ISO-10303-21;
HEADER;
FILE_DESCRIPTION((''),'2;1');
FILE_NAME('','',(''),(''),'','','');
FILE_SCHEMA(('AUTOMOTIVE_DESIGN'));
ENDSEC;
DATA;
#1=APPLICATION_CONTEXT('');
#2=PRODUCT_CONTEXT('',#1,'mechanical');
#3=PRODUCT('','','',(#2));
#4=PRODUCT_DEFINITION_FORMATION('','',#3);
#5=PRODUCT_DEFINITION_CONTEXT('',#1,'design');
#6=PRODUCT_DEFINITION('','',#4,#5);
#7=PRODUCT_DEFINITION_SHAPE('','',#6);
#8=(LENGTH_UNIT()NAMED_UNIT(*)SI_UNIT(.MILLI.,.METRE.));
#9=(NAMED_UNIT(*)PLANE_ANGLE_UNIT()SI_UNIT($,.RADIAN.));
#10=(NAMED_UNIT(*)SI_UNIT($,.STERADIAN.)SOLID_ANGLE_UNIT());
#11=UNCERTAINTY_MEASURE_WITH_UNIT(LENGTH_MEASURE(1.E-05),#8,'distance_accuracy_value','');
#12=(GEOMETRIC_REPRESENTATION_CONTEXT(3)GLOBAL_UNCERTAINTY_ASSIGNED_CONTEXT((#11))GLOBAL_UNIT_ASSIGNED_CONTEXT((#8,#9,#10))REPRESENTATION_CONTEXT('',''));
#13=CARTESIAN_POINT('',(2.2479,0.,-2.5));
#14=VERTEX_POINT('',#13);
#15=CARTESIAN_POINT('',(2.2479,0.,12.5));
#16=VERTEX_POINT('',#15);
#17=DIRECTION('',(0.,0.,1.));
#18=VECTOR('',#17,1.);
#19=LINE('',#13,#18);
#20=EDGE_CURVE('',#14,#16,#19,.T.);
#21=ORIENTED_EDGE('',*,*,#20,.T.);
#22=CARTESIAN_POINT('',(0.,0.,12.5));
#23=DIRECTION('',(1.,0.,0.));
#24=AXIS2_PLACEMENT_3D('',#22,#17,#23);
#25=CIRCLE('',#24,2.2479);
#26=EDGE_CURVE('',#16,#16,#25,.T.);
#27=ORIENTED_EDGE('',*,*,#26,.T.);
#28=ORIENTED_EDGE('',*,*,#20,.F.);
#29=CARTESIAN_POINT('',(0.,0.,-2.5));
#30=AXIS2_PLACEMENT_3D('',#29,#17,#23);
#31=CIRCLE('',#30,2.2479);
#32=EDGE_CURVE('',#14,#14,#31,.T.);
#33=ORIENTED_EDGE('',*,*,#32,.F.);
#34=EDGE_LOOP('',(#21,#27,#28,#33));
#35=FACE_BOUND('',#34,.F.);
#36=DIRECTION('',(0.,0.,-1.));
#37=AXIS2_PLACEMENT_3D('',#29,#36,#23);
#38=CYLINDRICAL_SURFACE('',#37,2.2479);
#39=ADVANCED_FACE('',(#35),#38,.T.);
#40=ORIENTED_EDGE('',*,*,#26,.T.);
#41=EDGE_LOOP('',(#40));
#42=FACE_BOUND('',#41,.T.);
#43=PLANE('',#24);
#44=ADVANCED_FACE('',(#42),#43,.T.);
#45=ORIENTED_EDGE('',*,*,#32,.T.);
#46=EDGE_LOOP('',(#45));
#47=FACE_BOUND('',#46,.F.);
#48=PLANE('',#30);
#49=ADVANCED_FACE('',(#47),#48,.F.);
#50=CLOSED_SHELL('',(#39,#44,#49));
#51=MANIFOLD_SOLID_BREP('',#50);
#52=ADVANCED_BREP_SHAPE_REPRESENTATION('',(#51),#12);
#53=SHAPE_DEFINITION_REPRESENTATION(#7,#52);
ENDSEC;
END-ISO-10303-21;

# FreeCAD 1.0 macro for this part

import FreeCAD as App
import Part
import Sketcher

V = App.Vector

doc = App.newDocument("Part")
params = doc.addObject("Spreadsheet::Sheet", "Params")
for row, (alias, value) in enumerate([
    ("pad1_length", "15 mm"),
], start=1):
    params.set(f"A{row}", alias)
    params.set(f"B{row}", "=" + value)
    params.setAlias(f"B{row}", alias)

body = doc.addObject("PartDesign::Body", "Body")

sketch1 = doc.addObject("Sketcher::SketchObject", "Sketch")
body.addObject(sketch1)
sketch1.AttachmentSupport = (doc.XY_Plane, [""])
sketch1.MapMode = "FlatFace"
sketch1.AttachmentOffset = App.Placement(V(0, 0, -2.5), App.Rotation())
sketch1.addGeometry(Part.Circle(V(0, 0, 0), V(0, 0, 1), 2.2), False)
sketch1.addConstraint([
    Sketcher.Constraint("Coincident", 0, 3, -1, 1),
    Sketcher.Constraint("Diameter", 0, 4.4958),
])
pad1 = doc.addObject("PartDesign::Pad", "Pad")
body.addObject(pad1)
pad1.Profile = sketch1
pad1.setExpression("Length", "Params.pad1_length")

doc.recompute()
